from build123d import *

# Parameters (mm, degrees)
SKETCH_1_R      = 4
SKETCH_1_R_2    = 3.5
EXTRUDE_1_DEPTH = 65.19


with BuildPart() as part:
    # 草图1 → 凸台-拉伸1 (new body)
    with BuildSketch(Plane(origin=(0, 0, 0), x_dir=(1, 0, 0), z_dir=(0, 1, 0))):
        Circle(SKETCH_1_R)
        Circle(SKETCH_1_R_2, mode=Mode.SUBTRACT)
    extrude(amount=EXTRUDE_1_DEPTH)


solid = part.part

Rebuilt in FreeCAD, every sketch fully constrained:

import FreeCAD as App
import Part
import Sketcher
from FreeCAD import Vector
Q = App.Units.Quantity

doc = App.newDocument("Part")
body = doc.addObject("PartDesign::Body", "Body")

sketch1 = body.newObject("Sketcher::SketchObject", "Sketch")
sketch1.AttachmentSupport = (doc.getObject("XZ_Plane"), [""])
sketch1.MapMode = "FlatFace"
sketch1.addGeometry(Part.Circle(Vector(0, 0, 0), Vector(0, 0, 1), 4), False)
sketch1.addGeometry(Part.Circle(Vector(0, 0, 0), Vector(0, 0, 1), 3.5), False)
sketch1.addConstraint(Sketcher.Constraint("Coincident", 0, 3, -1, 1))
sketch1.addConstraint(Sketcher.Constraint("Coincident", 1, 3, -1, 1))
sketch1.addConstraint(Sketcher.Constraint("Diameter", 0, Q("8 mm")))
sketch1.addConstraint(Sketcher.Constraint("Diameter", 1, Q("7 mm")))
pad1 = body.newObject("PartDesign::Pad", "Pad")
pad1.Profile = sketch1
pad1.Length = 65.19
pad1.Reversed = True

doc.recompute()
